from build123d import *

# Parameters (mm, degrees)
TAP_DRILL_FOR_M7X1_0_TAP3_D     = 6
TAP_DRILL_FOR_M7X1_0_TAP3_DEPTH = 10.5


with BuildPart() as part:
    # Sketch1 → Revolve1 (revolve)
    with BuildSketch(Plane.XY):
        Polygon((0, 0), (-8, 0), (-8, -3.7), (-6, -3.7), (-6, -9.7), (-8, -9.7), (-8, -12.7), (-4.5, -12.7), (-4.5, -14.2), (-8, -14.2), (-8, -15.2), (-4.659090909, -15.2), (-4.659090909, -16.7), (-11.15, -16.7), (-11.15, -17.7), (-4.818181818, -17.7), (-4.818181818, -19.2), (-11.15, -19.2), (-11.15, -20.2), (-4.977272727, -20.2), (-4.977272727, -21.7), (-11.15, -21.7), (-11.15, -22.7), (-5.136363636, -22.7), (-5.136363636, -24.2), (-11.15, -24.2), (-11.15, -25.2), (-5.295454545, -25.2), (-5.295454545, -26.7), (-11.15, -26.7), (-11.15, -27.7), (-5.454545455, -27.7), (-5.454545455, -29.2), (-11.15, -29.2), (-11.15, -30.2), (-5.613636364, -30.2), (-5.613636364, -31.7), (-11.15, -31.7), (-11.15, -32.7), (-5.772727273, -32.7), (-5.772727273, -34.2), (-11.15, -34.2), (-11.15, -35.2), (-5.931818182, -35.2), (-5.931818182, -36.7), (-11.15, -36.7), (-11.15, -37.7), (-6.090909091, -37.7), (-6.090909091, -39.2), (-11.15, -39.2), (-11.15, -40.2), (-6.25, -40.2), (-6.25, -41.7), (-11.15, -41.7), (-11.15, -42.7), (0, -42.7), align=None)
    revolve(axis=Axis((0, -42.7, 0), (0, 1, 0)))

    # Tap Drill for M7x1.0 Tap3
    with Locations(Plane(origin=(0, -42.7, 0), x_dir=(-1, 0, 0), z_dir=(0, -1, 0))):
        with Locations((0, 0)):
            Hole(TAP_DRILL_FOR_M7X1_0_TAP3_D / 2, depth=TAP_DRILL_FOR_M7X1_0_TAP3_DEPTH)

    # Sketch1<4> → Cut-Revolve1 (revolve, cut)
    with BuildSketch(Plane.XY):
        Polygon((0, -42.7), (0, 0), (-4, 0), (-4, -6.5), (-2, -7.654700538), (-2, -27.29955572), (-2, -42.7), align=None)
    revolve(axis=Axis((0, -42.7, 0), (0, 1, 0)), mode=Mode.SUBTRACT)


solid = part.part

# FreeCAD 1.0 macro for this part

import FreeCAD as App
import Part
import Sketcher

V = App.Vector
Q = App.Units.Quantity

doc = App.newDocument("Part")
body = doc.addObject("PartDesign::Body", "Body")

sketch1 = body.newObject("Sketcher::SketchObject", "Sketch")
sketch1.AttachmentSupport = (doc.getObject("XY_Plane"), [""])
sketch1.MapMode = "FlatFace"
sketch1.addGeometry(Part.LineSegment(V(0, 0, 0), V(-8, 0, 0)), False)
sketch1.addGeometry(Part.LineSegment(V(-8, 0, 0), V(-8, -3.7, 0)), False)
sketch1.addGeometry(Part.LineSegment(V(-8, -3.7, 0), V(-6, -3.7, 0)), False)
sketch1.addGeometry(Part.LineSegment(V(-6, -3.7, 0), V(-6, -9.7, 0)), False)
sketch1.addGeometry(Part.LineSegment(V(-6, -9.7, 0), V(-8, -9.7, 0)), False)
sketch1.addGeometry(Part.LineSegment(V(-8, -9.7, 0), V(-8, -12.7, 0)), False)
sketch1.addGeometry(Part.LineSegment(V(-8, -12.7, 0), V(-4.5, -12.7, 0)), False)
sketch1.addGeometry(Part.LineSegment(V(-4.5, -12.7, 0), V(-4.5, -14.2, 0)), False)
sketch1.addGeometry(Part.LineSegment(V(-4.5, -14.2, 0), V(-8, -14.2, 0)), False)
sketch1.addGeometry(Part.LineSegment(V(-8, -14.2, 0), V(-8, -15.2, 0)), False)
sketch1.addGeometry(Part.LineSegment(V(-8, -15.2, 0), V(-4.659091, -15.2, 0)), False)
sketch1.addGeometry(Part.LineSegment(V(-4.659091, -15.2, 0), V(-4.659091, -16.7, 0)), False)
sketch1.addGeometry(Part.LineSegment(V(-4.659091, -16.7, 0), V(-11.15, -16.7, 0)), False)
sketch1.addGeometry(Part.LineSegment(V(-11.15, -16.7, 0), V(-11.15, -17.7, 0)), False)
sketch1.addGeometry(Part.LineSegment(V(-11.15, -17.7, 0), V(-4.818182, -17.7, 0)), False)
sketch1.addGeometry(Part.LineSegment(V(-4.818182, -17.7, 0), V(-4.818182, -19.2, 0)), False)
sketch1.addGeometry(Part.LineSegment(V(-4.818182, -19.2, 0), V(-11.15, -19.2, 0)), False)
sketch1.addGeometry(Part.LineSegment(V(-11.15, -19.2, 0), V(-11.15, -20.2, 0)), False)
sketch1.addGeometry(Part.LineSegment(V(-11.15, -20.2, 0), V(-4.977273, -20.2, 0)), False)
sketch1.addGeometry(Part.LineSegment(V(-4.977273, -20.2, 0), V(-4.977273, -21.7, 0)), False)
sketch1.addGeometry(Part.LineSegment(V(-4.977273, -21.7, 0), V(-11.15, -21.7, 0)), False)
sketch1.addGeometry(Part.LineSegment(V(-11.15, -21.7, 0), V(-11.15, -22.7, 0)), False)
sketch1.addGeometry(Part.LineSegment(V(-11.15, -22.7, 0), V(-5.136364, -22.7, 0)), False)
sketch1.addGeometry(Part.LineSegment(V(-5.136364, -22.7, 0), V(-5.136364, -24.2, 0)), False)
sketch1.addGeometry(Part.LineSegment(V(-5.136364, -24.2, 0), V(-11.15, -24.2, 0)), False)
sketch1.addGeometry(Part.LineSegment(V(-11.15, -24.2, 0), V(-11.15, -25.2, 0)), False)
sketch1.addGeometry(Part.LineSegment(V(-11.15, -25.2, 0), V(-5.295455, -25.2, 0)), False)
sketch1.addGeometry(Part.LineSegment(V(-5.295455, -25.2, 0), V(-5.295455, -26.7, 0)), False)
sketch1.addGeometry(Part.LineSegment(V(-5.295455, -26.7, 0), V(-11.15, -26.7, 0)), False)
sketch1.addGeometry(Part.LineSegment(V(-11.15, -26.7, 0), V(-11.15, -27.7, 0)), False)
sketch1.addGeometry(Part.LineSegment(V(-11.15, -27.7, 0), V(-5.454545, -27.7, 0)), False)
sketch1.addGeometry(Part.LineSegment(V(-5.454545, -27.7, 0), V(-5.454545, -29.2, 0)), False)
sketch1.addGeometry(Part.LineSegment(V(-5.454545, -29.2, 0), V(-11.15, -29.2, 0)), False)
sketch1.addGeometry(Part.LineSegment(V(-11.15, -29.2, 0), V(-11.15, -30.2, 0)), False)
sketch1.addGeometry(Part.LineSegment(V(-11.15, -30.2, 0), V(-5.613636, -30.2, 0)), False)
sketch1.addGeometry(Part.LineSegment(V(-5.613636, -30.2, 0), V(-5.613636, -31.7, 0)), False)
sketch1.addGeometry(Part.LineSegment(V(-5.613636, -31.7, 0), V(-11.15, -31.7, 0)), False)
sketch1.addGeometry(Part.LineSegment(V(-11.15, -31.7, 0), V(-11.15, -32.7, 0)), False)
sketch1.addGeometry(Part.LineSegment(V(-11.15, -32.7, 0), V(-5.772727, -32.7, 0)), False)
sketch1.addGeometry(Part.LineSegment(V(-5.772727, -32.7, 0), V(-5.772727, -34.2, 0)), False)
sketch1.addGeometry(Part.LineSegment(V(-5.772727, -34.2, 0), V(-11.15, -34.2, 0)), False)
sketch1.addGeometry(Part.LineSegment(V(-11.15, -34.2, 0), V(-11.15, -35.2, 0)), False)
sketch1.addGeometry(Part.LineSegment(V(-11.15, -35.2, 0), V(-5.931818, -35.2, 0)), False)
sketch1.addGeometry(Part.LineSegment(V(-5.931818, -35.2, 0), V(-5.931818, -36.7, 0)), False)
sketch1.addGeometry(Part.LineSegment(V(-5.931818, -36.7, 0), V(-11.15, -36.7, 0)), False)
sketch1.addGeometry(Part.LineSegment(V(-11.15, -36.7, 0), V(-11.15, -37.7, 0)), False)
sketch1.addGeometry(Part.LineSegment(V(-11.15, -37.7, 0), V(-6.090909, -37.7, 0)), False)
sketch1.addGeometry(Part.LineSegment(V(-6.090909, -37.7, 0), V(-6.090909, -39.2, 0)), False)
sketch1.addGeometry(Part.LineSegment(V(-6.090909, -39.2, 0), V(-11.15, -39.2, 0)), False)
sketch1.addGeometry(Part.LineSegment(V(-11.15, -39.2, 0), V(-11.15, -40.2, 0)), False)
sketch1.addGeometry(Part.LineSegment(V(-11.15, -40.2, 0), V(-6.25, -40.2, 0)), False)
sketch1.addGeometry(Part.LineSegment(V(-6.25, -40.2, 0), V(-6.25, -41.7, 0)), False)
sketch1.addGeometry(Part.LineSegment(V(-6.25, -41.7, 0), V(-11.15, -41.7, 0)), False)
sketch1.addGeometry(Part.LineSegment(V(-11.15, -41.7, 0), V(-11.15, -42.7, 0)), False)
sketch1.addGeometry(Part.LineSegment(V(-11.15, -42.7, 0), V(0, -42.7, 0)), False)
sketch1.addGeometry(Part.LineSegment(V(0, -42.7, 0), V(0, 0, 0)), False)
sketch1.addConstraint(Sketcher.Constraint("Coincident", 0, 2, 1, 1))
sketch1.addConstraint(Sketcher.Constraint("Coincident", 1, 2, 2, 1))
sketch1.addConstraint(Sketcher.Constraint("Coincident", 2, 2, 3, 1))
sketch1.addConstraint(Sketcher.Constraint("Coincident", 3, 2, 4, 1))
sketch1.addConstraint(Sketcher.Constraint("Coincident", 4, 2, 5, 1))
sketch1.addConstraint(Sketcher.Constraint("Coincident", 5, 2, 6, 1))
sketch1.addConstraint(Sketcher.Constraint("Coincident", 6, 2, 7, 1))
sketch1.addConstraint(Sketcher.Constraint("Coincident", 7, 2, 8, 1))
sketch1.addConstraint(Sketcher.Constraint("Coincident", 8, 2, 9, 1))
sketch1.addConstraint(Sketcher.Constraint("Coincident", 9, 2, 10, 1))
sketch1.addConstraint(Sketcher.Constraint("Coincident", 10, 2, 11, 1))
sketch1.addConstraint(Sketcher.Constraint("Coincident", 11, 2, 12, 1))
sketch1.addConstraint(Sketcher.Constraint("Coincident", 12, 2, 13, 1))
sketch1.addConstraint(Sketcher.Constraint("Coincident", 13, 2, 14, 1))
sketch1.addConstraint(Sketcher.Constraint("Coincident", 14, 2, 15, 1))
sketch1.addConstraint(Sketcher.Constraint("Coincident", 15, 2, 16, 1))
sketch1.addConstraint(Sketcher.Constraint("Coincident", 16, 2, 17, 1))
sketch1.addConstraint(Sketcher.Constraint("Coincident", 17, 2, 18, 1))
sketch1.addConstraint(Sketcher.Constraint("Coincident", 18, 2, 19, 1))
sketch1.addConstraint(Sketcher.Constraint("Coincident", 19, 2, 20, 1))
sketch1.addConstraint(Sketcher.Constraint("Coincident", 20, 2, 21, 1))
sketch1.addConstraint(Sketcher.Constraint("Coincident", 21, 2, 22, 1))
sketch1.addConstraint(Sketcher.Constraint("Coincident", 22, 2, 23, 1))
sketch1.addConstraint(Sketcher.Constraint("Coincident", 23, 2, 24, 1))
sketch1.addConstraint(Sketcher.Constraint("Coincident", 24, 2, 25, 1))
sketch1.addConstraint(Sketcher.Constraint("Coincident", 25, 2, 26, 1))
sketch1.addConstraint(Sketcher.Constraint("Coincident", 26, 2, 27, 1))
sketch1.addConstraint(Sketcher.Constraint("Coincident", 27, 2, 28, 1))
sketch1.addConstraint(Sketcher.Constraint("Coincident", 28, 2, 29, 1))
sketch1.addConstraint(Sketcher.Constraint("Coincident", 29, 2, 30, 1))
sketch1.addConstraint(Sketcher.Constraint("Coincident", 30, 2, 31, 1))
sketch1.addConstraint(Sketcher.Constraint("Coincident", 31, 2, 32, 1))
sketch1.addConstraint(Sketcher.Constraint("Coincident", 32, 2, 33, 1))
sketch1.addConstraint(Sketcher.Constraint("Coincident", 33, 2, 34, 1))
sketch1.addConstraint(Sketcher.Constraint("Coincident", 34, 2, 35, 1))
sketch1.addConstraint(Sketcher.Constraint("Coincident", 35, 2, 36, 1))
sketch1.addConstraint(Sketcher.Constraint("Coincident", 36, 2, 37, 1))
sketch1.addConstraint(Sketcher.Constraint("Coincident", 37, 2, 38, 1))
sketch1.addConstraint(Sketcher.Constraint("Coincident", 38, 2, 39, 1))
sketch1.addConstraint(Sketcher.Constraint("Coincident", 39, 2, 40, 1))
sketch1.addConstraint(Sketcher.Constraint("Coincident", 40, 2, 41, 1))
sketch1.addConstraint(Sketcher.Constraint("Coincident", 41, 2, 42, 1))
sketch1.addConstraint(Sketcher.Constraint("Coincident", 42, 2, 43, 1))
sketch1.addConstraint(Sketcher.Constraint("Coincident", 43, 2, 44, 1))
sketch1.addConstraint(Sketcher.Constraint("Coincident", 44, 2, 45, 1))
sketch1.addConstraint(Sketcher.Constraint("Coincident", 45, 2, 46, 1))
sketch1.addConstraint(Sketcher.Constraint("Coincident", 46, 2, 47, 1))
sketch1.addConstraint(Sketcher.Constraint("Coincident", 47, 2, 48, 1))
sketch1.addConstraint(Sketcher.Constraint("Coincident", 48, 2, 49, 1))
sketch1.addConstraint(Sketcher.Constraint("Coincident", 49, 2, 50, 1))
sketch1.addConstraint(Sketcher.Constraint("Coincident", 50, 2, 51, 1))
sketch1.addConstraint(Sketcher.Constraint("Coincident", 51, 2, 52, 1))
sketch1.addConstraint(Sketcher.Constraint("Coincident", 52, 2, 53, 1))
sketch1.addConstraint(Sketcher.Constraint("Coincident", 53, 2, 54, 1))
sketch1.addConstraint(Sketcher.Constraint("Coincident", 54, 2, 55, 1))
sketch1.addConstraint(Sketcher.Constraint("Coincident", 55, 2, 0, 1))
sketch1.addConstraint(Sketcher.Constraint("Horizontal", 0))
sketch1.addConstraint(Sketcher.Constraint("Vertical", 1))
sketch1.addConstraint(Sketcher.Constraint("Horizontal", 2))
sketch1.addConstraint(Sketcher.Constraint("Vertical", 3))
sketch1.addConstraint(Sketcher.Constraint("Horizontal", 4))
sketch1.addConstraint(Sketcher.Constraint("Vertical", 5))
sketch1.addConstraint(Sketcher.Constraint("Horizontal", 6))
sketch1.addConstraint(Sketcher.Constraint("Vertical", 7))
sketch1.addConstraint(Sketcher.Constraint("Horizontal", 8))
sketch1.addConstraint(Sketcher.Constraint("Vertical", 9))
sketch1.addConstraint(Sketcher.Constraint("Horizontal", 10))
sketch1.addConstraint(Sketcher.Constraint("Vertical", 11))
sketch1.addConstraint(Sketcher.Constraint("Horizontal", 12))
sketch1.addConstraint(Sketcher.Constraint("Vertical", 13))
sketch1.addConstraint(Sketcher.Constraint("Horizontal", 14))
sketch1.addConstraint(Sketcher.Constraint("Vertical", 15))
sketch1.addConstraint(Sketcher.Constraint("Horizontal", 16))
sketch1.addConstraint(Sketcher.Constraint("Vertical", 17))
sketch1.addConstraint(Sketcher.Constraint("Horizontal", 18))
sketch1.addConstraint(Sketcher.Constraint("Vertical", 19))
sketch1.addConstraint(Sketcher.Constraint("Horizontal", 20))
sketch1.addConstraint(Sketcher.Constraint("Vertical", 21))
sketch1.addConstraint(Sketcher.Constraint("Horizontal", 22))
sketch1.addConstraint(Sketcher.Constraint("Vertical", 23))
sketch1.addConstraint(Sketcher.Constraint("Horizontal", 24))
sketch1.addConstraint(Sketcher.Constraint("Vertical", 25))
sketch1.addConstraint(Sketcher.Constraint("Horizontal", 26))
sketch1.addConstraint(Sketcher.Constraint("Vertical", 27))
sketch1.addConstraint(Sketcher.Constraint("Horizontal", 28))
sketch1.addConstraint(Sketcher.Constraint("Vertical", 29))
sketch1.addConstraint(Sketcher.Constraint("Horizontal", 30))
sketch1.addConstraint(Sketcher.Constraint("Vertical", 31))
sketch1.addConstraint(Sketcher.Constraint("Horizontal", 32))
sketch1.addConstraint(Sketcher.Constraint("Vertical", 33))
sketch1.addConstraint(Sketcher.Constraint("Horizontal", 34))
sketch1.addConstraint(Sketcher.Constraint("Vertical", 35))
sketch1.addConstraint(Sketcher.Constraint("Horizontal", 36))
sketch1.addConstraint(Sketcher.Constraint("Vertical", 37))
sketch1.addConstraint(Sketcher.Constraint("Horizontal", 38))
sketch1.addConstraint(Sketcher.Constraint("Vertical", 39))
sketch1.addConstraint(Sketcher.Constraint("Horizontal", 40))
sketch1.addConstraint(Sketcher.Constraint("Vertical", 41))
sketch1.addConstraint(Sketcher.Constraint("Horizontal", 42))
sketch1.addConstraint(Sketcher.Constraint("Vertical", 43))
sketch1.addConstraint(Sketcher.Constraint("Horizontal", 44))
sketch1.addConstraint(Sketcher.Constraint("Vertical", 45))
sketch1.addConstraint(Sketcher.Constraint("Horizontal", 46))
sketch1.addConstraint(Sketcher.Constraint("Vertical", 47))
sketch1.addConstraint(Sketcher.Constraint("Horizontal", 48))
sketch1.addConstraint(Sketcher.Constraint("Vertical", 49))
sketch1.addConstraint(Sketcher.Constraint("Horizontal", 50))
sketch1.addConstraint(Sketcher.Constraint("Vertical", 51))
sketch1.addConstraint(Sketcher.Constraint("Horizontal", 52))
sketch1.addConstraint(Sketcher.Constraint("Vertical", 53))
sketch1.addConstraint(Sketcher.Constraint("Horizontal", 54))
sketch1.addConstraint(Sketcher.Constraint("Vertical", 55))
sketch1.addConstraint(Sketcher.Constraint("Coincident", 55, 2, -1, 1))
sketch1.addConstraint(Sketcher.Constraint("Vertical", 1, 2, 4, 2))
sketch1.addConstraint(Sketcher.Constraint("Vertical", 5, 2, 8, 2))
sketch1.addConstraint(Sketcher.Constraint("Vertical", 13, 2, 16, 2))
sketch1.addConstraint(Sketcher.Constraint("Vertical", 17, 2, 20, 2))
sketch1.addConstraint(Sketcher.Constraint("Vertical", 21, 2, 24, 2))
sketch1.addConstraint(Sketcher.Constraint("Vertical", 25, 2, 28, 2))
sketch1.addConstraint(Sketcher.Constraint("Vertical", 29, 2, 32, 2))
sketch1.addConstraint(Sketcher.Constraint("Vertical", 33, 2, 36, 2))
sketch1.addConstraint(Sketcher.Constraint("Vertical", 37, 2, 40, 2))
sketch1.addConstraint(Sketcher.Constraint("Vertical", 41, 2, 44, 2))
sketch1.addConstraint(Sketcher.Constraint("Vertical", 45, 2, 48, 2))
sketch1.addConstraint(Sketcher.Constraint("Vertical", 49, 2, 52, 2))
sketch1.addConstraint(Sketcher.Constraint("Equal", 7, 11))
sketch1.addConstraint(Sketcher.Constraint("Equal", 9, 13))
sketch1.addConstraint(Sketcher.Constraint("Equal", 11, 15))
sketch1.addConstraint(Sketcher.Constraint("Equal", 13, 17))
sketch1.addConstraint(Sketcher.Constraint("Equal", 15, 19))
sketch1.addConstraint(Sketcher.Constraint("Equal", 17, 21))
sketch1.addConstraint(Sketcher.Constraint("Equal", 19, 23))
sketch1.addConstraint(Sketcher.Constraint("Equal", 21, 25))
sketch1.addConstraint(Sketcher.Constraint("Equal", 23, 27))
sketch1.addConstraint(Sketcher.Constraint("Equal", 25, 29))
sketch1.addConstraint(Sketcher.Constraint("Equal", 27, 31))
sketch1.addConstraint(Sketcher.Constraint("Equal", 29, 33))
sketch1.addConstraint(Sketcher.Constraint("Equal", 31, 35))
sketch1.addConstraint(Sketcher.Constraint("Equal", 33, 37))
sketch1.addConstraint(Sketcher.Constraint("Equal", 35, 39))
sketch1.addConstraint(Sketcher.Constraint("Equal", 37, 41))
sketch1.addConstraint(Sketcher.Constraint("Equal", 39, 43))
sketch1.addConstraint(Sketcher.Constraint("Equal", 41, 45))
sketch1.addConstraint(Sketcher.Constraint("Equal", 43, 47))
sketch1.addConstraint(Sketcher.Constraint("Equal", 45, 49))
sketch1.addConstraint(Sketcher.Constraint("Equal", 47, 51))
sketch1.addConstraint(Sketcher.Constraint("Equal", 49, 53))
sketch1.addConstraint(Sketcher.Constraint("DistanceX", 0, 2, 0, 1, Q("8 mm")))
sketch1.addConstraint(Sketcher.Constraint("DistanceX", 2, 1, 2, 2, Q("2 mm")))
sketch1.addConstraint(Sketcher.Constraint("DistanceY", 3, 2, 3, 1, Q("6 mm")))
sketch1.addConstraint(Sketcher.Constraint("DistanceY", 5, 2, 5, 1, Q("3 mm")))
sketch1.addConstraint(Sketcher.Constraint("DistanceY", 9, 2, 9, 1, Q("1 mm")))
sketch1.addConstraint(Sketcher.Constraint("DistanceX", 6, 1, 6, 2, Q("3.5 mm")))
sketch1.addConstraint(Sketcher.Constraint("DistanceX", 50, 1, 50, 2, Q("4.9 mm")))
sketch1.addConstraint(Sketcher.Constraint("DistanceY", 1, 2, 1, 1, Q("3.7 mm")))
sketch1.addConstraint(Sketcher.Constraint("DistanceY", 7, 2, 7, 1, Q("1.5 mm")))
sketch1.addConstraint(Sketcher.Constraint("DistanceX", 54, 1, 54, 2, Q("11.15 mm")))
sketch1.addConstraint(Sketcher.Constraint("DistanceX", 10, 1, 10, 2, Q("3.340909 mm")))
sketch1.addConstraint(Sketcher.Constraint("DistanceX", 14, 1, 14, 2, Q("6.331818 mm")))
sketch1.addConstraint(Sketcher.Constraint("DistanceX", 42, 1, 42, 2, Q("5.218182 mm")))
sketch1.addConstraint(Sketcher.Constraint("DistanceX", 46, 1, 46, 2, Q("5.059091 mm")))
sketch1.addConstraint(Sketcher.Constraint("DistanceX", 18, 1, 18, 2, Q("6.172727 mm")))
sketch1.addConstraint(Sketcher.Constraint("DistanceX", 22, 1, 22, 2, Q("6.013636 mm")))
sketch1.addConstraint(Sketcher.Constraint("DistanceX", 26, 1, 26, 2, Q("5.854545 mm")))
sketch1.addConstraint(Sketcher.Constraint("DistanceX", 30, 1, 30, 2, Q("5.695455 mm")))
sketch1.addConstraint(Sketcher.Constraint("DistanceX", 34, 1, 34, 2, Q("5.536364 mm")))
sketch1.addConstraint(Sketcher.Constraint("DistanceX", 38, 1, 38, 2, Q("5.377273 mm")))
revolution = body.newObject("PartDesign::Revolution", "Revolution")
revolution.Profile = sketch1
revolution.ReferenceAxis = (sketch1, ["V_Axis"])
revolution.Angle = 360

sketch2 = body.newObject("Sketcher::SketchObject", "Sketch001")
sketch2.AttachmentSupport = (doc.getObject("XZ_Plane"), [""])
sketch2.MapMode = "FlatFace"
sketch2.AttachmentOffset = App.Placement(V(0, 0, 42.7), App.Rotation())
sketch2.addGeometry(Part.Circle(V(0, 0, 0), V(0, 0, 1), 3), False)
sketch2.addConstraint(Sketcher.Constraint("Coincident", 0, 3, -1, 1))
sketch2.addConstraint(Sketcher.Constraint("Diameter", 0, Q("6 mm")))
doc.recompute()
hole = body.newObject("PartDesign::Hole", "Hole")
hole.Profile = sketch2
hole.ThreadType = "None"
hole.Diameter = 6
hole.DepthType = "Dimension"
hole.Depth = 10.5
hole.DrillPoint = "Flat"

sketch3 = body.newObject("Sketcher::SketchObject", "Sketch002")
sketch3.AttachmentSupport = (doc.getObject("XY_Plane"), [""])
sketch3.MapMode = "FlatFace"
sketch3.addGeometry(Part.LineSegment(V(0, -42.7, 0), V(0, 0, 0)), False)
sketch3.addGeometry(Part.LineSegment(V(0, 0, 0), V(-4, 0, 0)), False)
sketch3.addGeometry(Part.LineSegment(V(-4, 0, 0), V(-4, -6.5, 0)), False)
sketch3.addGeometry(Part.LineSegment(V(-4, -6.5, 0), V(-2, -7.654701, 0)), False)
sketch3.addGeometry(Part.LineSegment(V(-2, -7.654701, 0), V(-2, -42.7, 0)), False)
sketch3.addGeometry(Part.LineSegment(V(-2, -42.7, 0), V(0, -42.7, 0)), False)
sketch3.addConstraint(Sketcher.Constraint("Coincident", 0, 2, 1, 1))
sketch3.addConstraint(Sketcher.Constraint("Coincident", 1, 2, 2, 1))
sketch3.addConstraint(Sketcher.Constraint("Coincident", 2, 2, 3, 1))
sketch3.addConstraint(Sketcher.Constraint("Coincident", 3, 2, 4, 1))
sketch3.addConstraint(Sketcher.Constraint("Coincident", 4, 2, 5, 1))
sketch3.addConstraint(Sketcher.Constraint("Coincident", 5, 2, 0, 1))
sketch3.addConstraint(Sketcher.Constraint("Vertical", 0))
sketch3.addConstraint(Sketcher.Constraint("Horizontal", 1))
sketch3.addConstraint(Sketcher.Constraint("Vertical", 2))
sketch3.addConstraint(Sketcher.Constraint("Vertical", 4))
sketch3.addConstraint(Sketcher.Constraint("Horizontal", 5))
sketch3.addConstraint(Sketcher.Constraint("Coincident", 0, 2, -1, 1))
sketch3.addConstraint(Sketcher.Constraint("DistanceX", 1, 2, 1, 1, Q("4 mm")))
sketch3.addConstraint(Sketcher.Constraint("DistanceX", 5, 1, 5, 2, Q("2 mm")))
sketch3.addConstraint(Sketcher.Constraint("Angle", 3, Q("-30 deg")))
sketch3.addConstraint(Sketcher.Constraint("DistanceY", 0, 1, 0, 2, Q("42.7 mm")))
sketch3.addConstraint(Sketcher.Constraint("DistanceY", 2, 2, 2, 1, Q("6.5 mm")))
groove = body.newObject("PartDesign::Groove", "Groove")
groove.Profile = sketch3
groove.ReferenceAxis = (sketch3, ["V_Axis"])
groove.Angle = 360

doc.recompute()
